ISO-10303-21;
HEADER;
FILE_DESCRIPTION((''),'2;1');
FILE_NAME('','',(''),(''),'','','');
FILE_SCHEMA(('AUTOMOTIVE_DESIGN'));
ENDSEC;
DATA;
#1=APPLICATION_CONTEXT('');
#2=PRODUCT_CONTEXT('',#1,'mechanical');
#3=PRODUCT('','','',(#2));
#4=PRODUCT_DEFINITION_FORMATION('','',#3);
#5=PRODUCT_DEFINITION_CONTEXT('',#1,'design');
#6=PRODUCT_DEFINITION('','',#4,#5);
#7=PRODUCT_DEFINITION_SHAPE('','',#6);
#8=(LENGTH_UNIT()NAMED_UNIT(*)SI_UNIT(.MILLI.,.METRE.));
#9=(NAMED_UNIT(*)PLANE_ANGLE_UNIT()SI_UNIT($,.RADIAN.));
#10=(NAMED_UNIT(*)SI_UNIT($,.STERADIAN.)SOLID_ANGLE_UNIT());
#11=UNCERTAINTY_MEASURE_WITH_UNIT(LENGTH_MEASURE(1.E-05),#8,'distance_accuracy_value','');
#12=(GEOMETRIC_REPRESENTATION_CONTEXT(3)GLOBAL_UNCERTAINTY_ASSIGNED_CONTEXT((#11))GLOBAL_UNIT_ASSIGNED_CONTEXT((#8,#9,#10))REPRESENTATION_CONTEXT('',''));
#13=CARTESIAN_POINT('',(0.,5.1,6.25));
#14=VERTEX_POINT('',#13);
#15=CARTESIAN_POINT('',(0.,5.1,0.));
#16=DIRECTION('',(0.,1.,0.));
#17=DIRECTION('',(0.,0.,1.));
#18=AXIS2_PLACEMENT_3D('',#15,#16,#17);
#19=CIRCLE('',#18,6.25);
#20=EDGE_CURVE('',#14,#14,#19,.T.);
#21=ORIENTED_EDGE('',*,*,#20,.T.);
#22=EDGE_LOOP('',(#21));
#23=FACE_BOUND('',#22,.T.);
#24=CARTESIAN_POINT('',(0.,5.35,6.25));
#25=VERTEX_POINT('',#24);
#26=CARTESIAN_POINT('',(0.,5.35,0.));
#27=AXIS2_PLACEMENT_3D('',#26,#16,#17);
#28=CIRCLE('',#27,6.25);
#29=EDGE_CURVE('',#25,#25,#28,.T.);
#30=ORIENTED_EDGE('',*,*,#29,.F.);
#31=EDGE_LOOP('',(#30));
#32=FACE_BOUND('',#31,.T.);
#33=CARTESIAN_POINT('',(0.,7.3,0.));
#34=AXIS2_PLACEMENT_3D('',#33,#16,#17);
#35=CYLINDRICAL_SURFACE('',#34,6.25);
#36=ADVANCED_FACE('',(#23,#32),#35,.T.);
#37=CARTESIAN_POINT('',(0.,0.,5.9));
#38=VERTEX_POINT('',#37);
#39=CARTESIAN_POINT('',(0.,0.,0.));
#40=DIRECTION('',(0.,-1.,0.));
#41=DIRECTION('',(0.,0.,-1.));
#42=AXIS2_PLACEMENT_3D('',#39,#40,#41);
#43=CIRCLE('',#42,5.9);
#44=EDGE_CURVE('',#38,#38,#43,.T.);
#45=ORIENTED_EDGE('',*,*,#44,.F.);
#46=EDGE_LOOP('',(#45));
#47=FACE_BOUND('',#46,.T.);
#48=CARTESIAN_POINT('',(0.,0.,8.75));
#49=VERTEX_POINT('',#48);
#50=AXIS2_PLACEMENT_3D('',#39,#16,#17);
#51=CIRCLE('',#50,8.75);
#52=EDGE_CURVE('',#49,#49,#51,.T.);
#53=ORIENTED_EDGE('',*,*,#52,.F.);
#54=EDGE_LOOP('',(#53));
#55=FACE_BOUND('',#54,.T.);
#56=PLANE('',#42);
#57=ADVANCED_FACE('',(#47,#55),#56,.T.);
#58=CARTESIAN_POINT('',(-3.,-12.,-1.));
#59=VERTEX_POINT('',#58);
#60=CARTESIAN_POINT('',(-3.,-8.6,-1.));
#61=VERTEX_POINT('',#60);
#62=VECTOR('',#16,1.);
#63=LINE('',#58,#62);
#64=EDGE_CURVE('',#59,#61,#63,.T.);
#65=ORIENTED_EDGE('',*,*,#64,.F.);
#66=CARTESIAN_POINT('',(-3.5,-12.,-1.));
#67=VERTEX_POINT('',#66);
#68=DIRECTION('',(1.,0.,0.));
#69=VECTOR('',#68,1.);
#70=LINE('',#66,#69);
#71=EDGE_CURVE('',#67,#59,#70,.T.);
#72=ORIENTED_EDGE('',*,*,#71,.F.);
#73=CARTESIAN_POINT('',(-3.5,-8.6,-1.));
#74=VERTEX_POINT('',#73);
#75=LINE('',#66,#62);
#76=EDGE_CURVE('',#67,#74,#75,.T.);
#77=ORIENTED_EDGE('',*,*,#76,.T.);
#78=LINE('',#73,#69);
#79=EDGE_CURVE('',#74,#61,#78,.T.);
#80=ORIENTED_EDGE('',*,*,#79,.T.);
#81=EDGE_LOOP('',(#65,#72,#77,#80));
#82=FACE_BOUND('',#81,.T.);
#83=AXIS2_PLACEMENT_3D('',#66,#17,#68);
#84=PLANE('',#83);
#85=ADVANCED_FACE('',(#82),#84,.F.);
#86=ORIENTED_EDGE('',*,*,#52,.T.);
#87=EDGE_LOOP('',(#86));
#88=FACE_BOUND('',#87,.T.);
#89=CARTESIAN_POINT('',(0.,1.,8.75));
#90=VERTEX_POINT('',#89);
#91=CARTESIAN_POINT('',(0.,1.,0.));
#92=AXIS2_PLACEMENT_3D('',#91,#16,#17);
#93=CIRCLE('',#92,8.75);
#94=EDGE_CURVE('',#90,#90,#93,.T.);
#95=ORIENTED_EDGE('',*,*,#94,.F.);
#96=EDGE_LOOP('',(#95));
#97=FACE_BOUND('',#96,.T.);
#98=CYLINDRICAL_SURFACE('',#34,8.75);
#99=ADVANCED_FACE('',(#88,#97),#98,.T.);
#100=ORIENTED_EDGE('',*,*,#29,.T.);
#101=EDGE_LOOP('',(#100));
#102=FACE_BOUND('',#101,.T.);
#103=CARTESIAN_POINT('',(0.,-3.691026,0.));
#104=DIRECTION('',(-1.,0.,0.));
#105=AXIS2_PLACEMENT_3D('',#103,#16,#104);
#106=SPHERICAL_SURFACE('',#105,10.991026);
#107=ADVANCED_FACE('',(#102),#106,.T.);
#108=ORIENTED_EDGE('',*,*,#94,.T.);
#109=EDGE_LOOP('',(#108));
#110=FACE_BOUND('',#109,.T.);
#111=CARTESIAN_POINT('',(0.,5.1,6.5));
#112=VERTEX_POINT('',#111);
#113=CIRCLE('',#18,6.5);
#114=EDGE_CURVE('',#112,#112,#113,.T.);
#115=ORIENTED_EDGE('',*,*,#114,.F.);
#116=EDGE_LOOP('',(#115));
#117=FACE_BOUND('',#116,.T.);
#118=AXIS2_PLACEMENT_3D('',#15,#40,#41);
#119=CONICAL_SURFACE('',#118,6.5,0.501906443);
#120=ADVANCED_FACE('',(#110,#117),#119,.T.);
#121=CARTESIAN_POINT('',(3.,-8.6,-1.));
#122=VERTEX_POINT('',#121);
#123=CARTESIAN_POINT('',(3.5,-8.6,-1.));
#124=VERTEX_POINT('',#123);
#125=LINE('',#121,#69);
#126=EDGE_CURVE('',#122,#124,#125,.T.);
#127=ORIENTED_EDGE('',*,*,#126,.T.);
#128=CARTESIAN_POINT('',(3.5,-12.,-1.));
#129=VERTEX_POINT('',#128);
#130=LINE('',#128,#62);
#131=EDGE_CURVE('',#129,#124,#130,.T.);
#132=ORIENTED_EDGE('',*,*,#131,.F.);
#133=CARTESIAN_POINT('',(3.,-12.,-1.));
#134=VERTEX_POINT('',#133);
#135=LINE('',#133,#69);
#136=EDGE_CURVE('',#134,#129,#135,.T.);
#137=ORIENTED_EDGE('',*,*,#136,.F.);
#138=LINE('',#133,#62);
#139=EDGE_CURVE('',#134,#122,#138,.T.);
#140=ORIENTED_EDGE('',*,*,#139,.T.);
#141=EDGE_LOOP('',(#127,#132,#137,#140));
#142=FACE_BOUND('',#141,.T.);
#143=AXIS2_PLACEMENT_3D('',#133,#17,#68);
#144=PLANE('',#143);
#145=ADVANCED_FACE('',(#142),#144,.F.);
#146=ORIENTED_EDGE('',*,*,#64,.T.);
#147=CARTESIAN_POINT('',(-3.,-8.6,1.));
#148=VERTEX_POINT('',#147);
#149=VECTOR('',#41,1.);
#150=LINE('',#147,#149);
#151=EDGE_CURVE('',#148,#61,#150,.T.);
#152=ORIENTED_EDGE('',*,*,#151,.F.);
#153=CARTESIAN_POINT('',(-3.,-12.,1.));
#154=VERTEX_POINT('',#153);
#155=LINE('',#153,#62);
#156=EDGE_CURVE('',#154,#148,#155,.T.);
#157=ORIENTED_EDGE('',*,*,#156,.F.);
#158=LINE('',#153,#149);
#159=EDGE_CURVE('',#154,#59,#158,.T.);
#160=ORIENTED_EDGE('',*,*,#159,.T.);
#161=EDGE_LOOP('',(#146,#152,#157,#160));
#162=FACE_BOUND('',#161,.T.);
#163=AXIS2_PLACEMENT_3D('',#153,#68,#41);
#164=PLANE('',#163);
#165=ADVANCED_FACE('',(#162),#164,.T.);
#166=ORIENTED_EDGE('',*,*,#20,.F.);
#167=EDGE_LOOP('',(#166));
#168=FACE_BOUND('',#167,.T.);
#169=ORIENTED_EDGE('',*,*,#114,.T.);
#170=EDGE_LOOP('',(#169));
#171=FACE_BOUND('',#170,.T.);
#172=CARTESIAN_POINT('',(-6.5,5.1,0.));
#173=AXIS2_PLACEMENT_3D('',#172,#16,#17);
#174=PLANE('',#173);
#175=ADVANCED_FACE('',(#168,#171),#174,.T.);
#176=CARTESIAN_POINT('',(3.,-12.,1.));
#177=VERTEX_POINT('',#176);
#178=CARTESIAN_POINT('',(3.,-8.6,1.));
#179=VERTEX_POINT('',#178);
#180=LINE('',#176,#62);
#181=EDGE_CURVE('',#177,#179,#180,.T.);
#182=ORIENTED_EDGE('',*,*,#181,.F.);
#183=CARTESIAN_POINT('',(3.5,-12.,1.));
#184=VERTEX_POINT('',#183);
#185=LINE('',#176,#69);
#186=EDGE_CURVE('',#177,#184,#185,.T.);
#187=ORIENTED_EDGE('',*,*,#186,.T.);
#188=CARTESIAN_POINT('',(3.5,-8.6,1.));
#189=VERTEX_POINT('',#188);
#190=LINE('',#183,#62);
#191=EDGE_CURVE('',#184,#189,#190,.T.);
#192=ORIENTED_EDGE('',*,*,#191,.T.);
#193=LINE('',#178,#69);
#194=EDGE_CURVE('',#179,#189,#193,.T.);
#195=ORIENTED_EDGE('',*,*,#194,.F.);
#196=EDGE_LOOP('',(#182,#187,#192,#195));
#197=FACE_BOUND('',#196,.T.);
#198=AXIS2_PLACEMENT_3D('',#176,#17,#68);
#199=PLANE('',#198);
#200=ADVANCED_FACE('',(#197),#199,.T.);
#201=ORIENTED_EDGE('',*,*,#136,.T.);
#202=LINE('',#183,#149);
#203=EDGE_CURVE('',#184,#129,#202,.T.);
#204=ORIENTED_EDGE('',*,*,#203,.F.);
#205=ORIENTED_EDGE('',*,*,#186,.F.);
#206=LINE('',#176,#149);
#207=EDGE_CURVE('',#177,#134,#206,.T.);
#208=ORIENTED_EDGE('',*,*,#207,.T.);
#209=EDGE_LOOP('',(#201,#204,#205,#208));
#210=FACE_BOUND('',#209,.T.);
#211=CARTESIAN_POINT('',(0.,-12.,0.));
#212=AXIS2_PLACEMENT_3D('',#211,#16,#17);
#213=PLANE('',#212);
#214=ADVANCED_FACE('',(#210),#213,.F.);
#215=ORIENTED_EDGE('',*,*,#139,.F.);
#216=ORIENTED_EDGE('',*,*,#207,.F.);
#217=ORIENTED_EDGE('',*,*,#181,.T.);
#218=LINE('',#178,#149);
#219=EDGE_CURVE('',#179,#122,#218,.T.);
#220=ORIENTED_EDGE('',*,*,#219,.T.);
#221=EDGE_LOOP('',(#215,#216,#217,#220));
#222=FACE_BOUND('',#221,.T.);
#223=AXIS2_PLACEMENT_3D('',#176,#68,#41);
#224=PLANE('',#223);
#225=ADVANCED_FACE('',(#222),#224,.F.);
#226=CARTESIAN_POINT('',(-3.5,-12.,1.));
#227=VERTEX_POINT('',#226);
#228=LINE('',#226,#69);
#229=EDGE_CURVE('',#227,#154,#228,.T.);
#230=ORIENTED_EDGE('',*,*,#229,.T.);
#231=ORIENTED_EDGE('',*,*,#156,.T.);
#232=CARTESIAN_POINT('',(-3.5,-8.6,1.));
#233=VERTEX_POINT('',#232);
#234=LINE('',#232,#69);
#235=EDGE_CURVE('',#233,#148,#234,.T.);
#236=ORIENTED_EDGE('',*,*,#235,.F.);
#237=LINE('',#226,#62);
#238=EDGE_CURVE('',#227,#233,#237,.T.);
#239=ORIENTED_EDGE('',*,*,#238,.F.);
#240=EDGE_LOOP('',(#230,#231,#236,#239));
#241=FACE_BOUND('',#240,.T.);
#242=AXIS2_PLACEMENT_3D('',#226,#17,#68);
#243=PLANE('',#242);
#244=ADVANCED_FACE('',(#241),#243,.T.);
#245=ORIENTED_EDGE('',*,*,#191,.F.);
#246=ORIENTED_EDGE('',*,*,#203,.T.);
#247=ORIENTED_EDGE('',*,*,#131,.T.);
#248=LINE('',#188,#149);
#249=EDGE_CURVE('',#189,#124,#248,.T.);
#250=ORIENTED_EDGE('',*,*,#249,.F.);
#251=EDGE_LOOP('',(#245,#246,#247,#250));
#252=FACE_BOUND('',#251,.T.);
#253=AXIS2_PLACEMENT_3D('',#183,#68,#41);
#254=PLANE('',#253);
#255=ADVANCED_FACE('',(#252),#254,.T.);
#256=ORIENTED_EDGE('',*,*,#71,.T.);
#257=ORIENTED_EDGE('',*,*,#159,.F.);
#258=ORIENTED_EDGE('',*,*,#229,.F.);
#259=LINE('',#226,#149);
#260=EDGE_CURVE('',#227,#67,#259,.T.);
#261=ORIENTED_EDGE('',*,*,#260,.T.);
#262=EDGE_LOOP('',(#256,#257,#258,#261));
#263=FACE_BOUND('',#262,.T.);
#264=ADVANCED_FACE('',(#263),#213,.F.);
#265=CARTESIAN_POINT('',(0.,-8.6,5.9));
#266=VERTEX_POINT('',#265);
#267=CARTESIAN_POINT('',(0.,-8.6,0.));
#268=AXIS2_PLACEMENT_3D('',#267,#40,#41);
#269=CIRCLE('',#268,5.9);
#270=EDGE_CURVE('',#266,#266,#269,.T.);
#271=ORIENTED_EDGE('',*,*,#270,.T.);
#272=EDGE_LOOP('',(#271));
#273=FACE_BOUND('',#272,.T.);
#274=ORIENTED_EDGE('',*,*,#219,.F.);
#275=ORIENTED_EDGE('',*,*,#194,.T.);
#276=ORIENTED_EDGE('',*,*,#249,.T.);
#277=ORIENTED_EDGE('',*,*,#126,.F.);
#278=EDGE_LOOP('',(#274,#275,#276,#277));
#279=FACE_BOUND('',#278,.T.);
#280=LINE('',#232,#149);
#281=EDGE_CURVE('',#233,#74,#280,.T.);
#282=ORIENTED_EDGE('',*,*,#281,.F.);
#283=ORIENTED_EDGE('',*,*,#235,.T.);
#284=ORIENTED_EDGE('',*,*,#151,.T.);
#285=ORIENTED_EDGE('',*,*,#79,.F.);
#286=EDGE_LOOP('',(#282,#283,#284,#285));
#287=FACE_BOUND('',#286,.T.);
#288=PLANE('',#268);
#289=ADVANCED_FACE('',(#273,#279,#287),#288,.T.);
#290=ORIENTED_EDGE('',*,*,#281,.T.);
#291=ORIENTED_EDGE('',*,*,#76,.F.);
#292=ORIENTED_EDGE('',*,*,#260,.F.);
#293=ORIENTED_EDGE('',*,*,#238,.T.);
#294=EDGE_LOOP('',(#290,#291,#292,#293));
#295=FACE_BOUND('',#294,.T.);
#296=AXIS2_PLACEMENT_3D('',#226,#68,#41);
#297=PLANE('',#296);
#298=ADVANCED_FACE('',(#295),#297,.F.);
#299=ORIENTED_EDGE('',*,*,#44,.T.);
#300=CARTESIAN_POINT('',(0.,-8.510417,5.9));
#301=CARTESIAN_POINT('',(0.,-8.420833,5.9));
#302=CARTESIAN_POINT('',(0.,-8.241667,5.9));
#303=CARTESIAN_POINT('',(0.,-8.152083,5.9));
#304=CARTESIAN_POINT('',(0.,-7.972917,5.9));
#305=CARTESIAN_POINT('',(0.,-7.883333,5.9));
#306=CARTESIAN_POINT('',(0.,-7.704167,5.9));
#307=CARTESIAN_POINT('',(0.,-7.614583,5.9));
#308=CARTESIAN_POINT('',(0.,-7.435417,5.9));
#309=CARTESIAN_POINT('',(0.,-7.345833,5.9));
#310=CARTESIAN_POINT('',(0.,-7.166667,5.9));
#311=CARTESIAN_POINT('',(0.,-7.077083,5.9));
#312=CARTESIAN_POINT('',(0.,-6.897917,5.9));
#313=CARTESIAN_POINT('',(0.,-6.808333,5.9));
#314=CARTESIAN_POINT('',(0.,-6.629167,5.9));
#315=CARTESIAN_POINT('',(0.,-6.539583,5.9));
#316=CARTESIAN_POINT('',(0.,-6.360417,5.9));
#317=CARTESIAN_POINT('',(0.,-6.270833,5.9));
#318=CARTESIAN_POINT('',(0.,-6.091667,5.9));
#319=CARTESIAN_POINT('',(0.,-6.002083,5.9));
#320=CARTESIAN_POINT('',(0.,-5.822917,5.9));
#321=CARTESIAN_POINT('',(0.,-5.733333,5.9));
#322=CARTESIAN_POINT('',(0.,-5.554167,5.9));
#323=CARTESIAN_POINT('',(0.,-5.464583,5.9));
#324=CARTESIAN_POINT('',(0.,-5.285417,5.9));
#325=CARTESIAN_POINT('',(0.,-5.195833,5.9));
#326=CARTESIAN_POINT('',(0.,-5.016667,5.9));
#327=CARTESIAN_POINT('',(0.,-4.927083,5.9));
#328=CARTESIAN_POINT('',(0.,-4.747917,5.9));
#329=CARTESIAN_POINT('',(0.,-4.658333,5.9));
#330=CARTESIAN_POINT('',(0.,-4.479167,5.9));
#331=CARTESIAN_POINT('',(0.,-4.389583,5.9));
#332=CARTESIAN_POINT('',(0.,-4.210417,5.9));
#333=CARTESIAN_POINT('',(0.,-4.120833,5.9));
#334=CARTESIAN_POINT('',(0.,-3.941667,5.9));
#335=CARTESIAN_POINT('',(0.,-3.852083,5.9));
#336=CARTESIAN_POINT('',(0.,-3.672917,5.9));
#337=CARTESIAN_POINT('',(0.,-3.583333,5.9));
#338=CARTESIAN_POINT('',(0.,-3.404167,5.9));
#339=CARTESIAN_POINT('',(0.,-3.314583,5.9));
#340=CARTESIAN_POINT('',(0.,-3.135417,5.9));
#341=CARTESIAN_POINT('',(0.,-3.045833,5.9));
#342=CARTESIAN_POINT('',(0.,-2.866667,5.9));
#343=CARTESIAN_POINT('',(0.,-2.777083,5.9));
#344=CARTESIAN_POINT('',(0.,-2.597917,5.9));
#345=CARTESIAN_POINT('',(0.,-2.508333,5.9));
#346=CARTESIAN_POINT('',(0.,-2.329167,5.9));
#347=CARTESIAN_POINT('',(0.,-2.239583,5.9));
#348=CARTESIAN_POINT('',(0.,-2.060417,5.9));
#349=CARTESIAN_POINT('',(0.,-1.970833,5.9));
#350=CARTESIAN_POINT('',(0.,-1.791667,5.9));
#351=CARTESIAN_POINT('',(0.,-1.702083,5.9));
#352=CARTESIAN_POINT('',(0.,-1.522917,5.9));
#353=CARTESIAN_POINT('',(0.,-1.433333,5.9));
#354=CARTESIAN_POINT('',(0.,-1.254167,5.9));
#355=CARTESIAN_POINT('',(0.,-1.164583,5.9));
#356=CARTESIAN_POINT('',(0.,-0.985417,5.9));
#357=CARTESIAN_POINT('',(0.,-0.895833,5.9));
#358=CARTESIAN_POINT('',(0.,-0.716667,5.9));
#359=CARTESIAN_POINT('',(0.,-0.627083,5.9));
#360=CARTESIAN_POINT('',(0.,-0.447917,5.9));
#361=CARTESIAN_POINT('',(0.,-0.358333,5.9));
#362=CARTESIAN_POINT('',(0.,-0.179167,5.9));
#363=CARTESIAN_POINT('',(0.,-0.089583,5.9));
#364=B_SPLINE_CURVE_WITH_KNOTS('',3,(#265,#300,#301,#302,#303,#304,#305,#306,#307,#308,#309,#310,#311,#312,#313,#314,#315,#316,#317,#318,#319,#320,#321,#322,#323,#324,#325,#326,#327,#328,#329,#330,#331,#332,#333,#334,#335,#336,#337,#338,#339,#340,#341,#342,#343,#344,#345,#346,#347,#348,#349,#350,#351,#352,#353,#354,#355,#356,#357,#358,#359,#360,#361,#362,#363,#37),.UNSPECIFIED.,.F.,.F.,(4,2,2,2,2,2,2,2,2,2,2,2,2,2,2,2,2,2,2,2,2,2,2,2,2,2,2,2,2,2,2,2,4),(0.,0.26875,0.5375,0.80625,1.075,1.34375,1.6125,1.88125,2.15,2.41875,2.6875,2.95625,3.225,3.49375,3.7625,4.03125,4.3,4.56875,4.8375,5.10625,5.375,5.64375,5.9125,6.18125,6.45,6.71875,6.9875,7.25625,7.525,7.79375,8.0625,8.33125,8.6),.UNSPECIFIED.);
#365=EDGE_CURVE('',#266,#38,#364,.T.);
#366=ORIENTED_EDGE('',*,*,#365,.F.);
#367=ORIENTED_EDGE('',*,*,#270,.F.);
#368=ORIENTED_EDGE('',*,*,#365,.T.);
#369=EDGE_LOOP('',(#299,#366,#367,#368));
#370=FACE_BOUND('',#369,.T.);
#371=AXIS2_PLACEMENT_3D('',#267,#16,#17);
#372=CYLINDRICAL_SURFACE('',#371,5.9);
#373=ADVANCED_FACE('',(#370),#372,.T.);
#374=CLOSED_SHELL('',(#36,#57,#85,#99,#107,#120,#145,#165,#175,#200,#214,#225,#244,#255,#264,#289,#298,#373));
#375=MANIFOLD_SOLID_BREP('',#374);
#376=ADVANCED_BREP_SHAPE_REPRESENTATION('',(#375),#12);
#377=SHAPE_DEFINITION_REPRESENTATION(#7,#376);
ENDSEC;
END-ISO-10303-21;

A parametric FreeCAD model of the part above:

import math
import FreeCAD as App
import Part
import Sketcher

V = App.Vector


def add_polygon(sketch, points):
    """Adds a closed chain of lines whose ends are joined by coincident constraints."""
    first, n = sketch.GeometryCount, len(points)
    for a, b in zip(points, points[1:] + points[:1]):
        sketch.addGeometry(Part.LineSegment(App.Vector(*a, 0), App.Vector(*b, 0)), False)
    for i in range(n):
        sketch.addConstraint(Sketcher.Constraint("Coincident", first + i, 2, first + (i + 1) % n, 1))

doc = App.newDocument("Part")
body = doc.addObject("PartDesign::Body", "Body")

# Sketch on XY plane
sketch1 = doc.addObject("Sketcher::SketchObject", "Sketch")
body.addObject(sketch1)
sketch1.AttachmentSupport = (doc.XY_Plane, [""])
sketch1.MapMode = "FlatFace"
sketch1.addGeometry([
    Part.LineSegment(V(-8.75, 0, 0), V(0, 0, 0)),  # 0
    Part.LineSegment(V(0, 0, 0), V(0, 7.3, 0)),  # 1
    Part.ArcOfCircle(Part.Circle(V(0, -3.69, 0), V(0, 0, 1), 10.99), math.radians(90), math.radians(125)),  # 2
    Part.LineSegment(V(-6.25, 5.35, 0), V(-6.25, 5.1, 0)),  # 3
    Part.LineSegment(V(-6.25, 5.1, 0), V(-6.5, 5.1, 0)),  # 4
    Part.LineSegment(V(-6.5, 5.1, 0), V(-8.75, 1, 0)),  # 5
    Part.LineSegment(V(-8.75, 1, 0), V(-8.75, 0, 0)),  # 6
], False)
sketch1.addConstraint([
    Sketcher.Constraint("Coincident", 0, 2, 1, 1),
    Sketcher.Constraint("Coincident", 1, 2, 2, 1),
    Sketcher.Constraint("Coincident", 2, 2, 3, 1),
    Sketcher.Constraint("Coincident", 3, 2, 4, 1),
    Sketcher.Constraint("Coincident", 4, 2, 5, 1),
    Sketcher.Constraint("Coincident", 5, 2, 6, 1),
    Sketcher.Constraint("Coincident", 6, 2, 0, 1),
    Sketcher.Constraint("Horizontal", 0),
    Sketcher.Constraint("Vertical", 1),
    Sketcher.Constraint("Vertical", 3),
    Sketcher.Constraint("Horizontal", 4),
    Sketcher.Constraint("Vertical", 6),
    Sketcher.Constraint("Coincident", 0, 2, -1, 1),
    Sketcher.Constraint("PointOnObject", 2, 3, -2),
    Sketcher.Constraint("Equal", 4, 3),
    Sketcher.Constraint("DistanceY", 6, 2, 6, 1, 1.0),
    Sketcher.Constraint("DistanceY", 1, 1, 1, 2, 7.3),
    Sketcher.Constraint("DistanceX", 0, 1, 0, 2, 8.75),
    Sketcher.Constraint("DistanceX", 4, 2, 4, 1, 0.25),
    Sketcher.Constraint("DistanceY", -1, 1, 3, 2, 5.1),
    Sketcher.Constraint("DistanceX", 4, 2, -1, 1, 6.5),
])
revolution = doc.addObject("PartDesign::Revolution", "Revolution")
body.addObject(revolution)
revolution.Profile = sketch1
revolution.ReferenceAxis = (sketch1, ["V_Axis"])
revolution.Angle = 360

# Sketch on XZ plane
sketch2 = doc.addObject("Sketcher::SketchObject", "Sketch001")
body.addObject(sketch2)
sketch2.AttachmentSupport = (doc.XZ_Plane, [""])
sketch2.MapMode = "FlatFace"
sketch2.addGeometry(Part.Circle(V(0, 0, 0), V(0, 0, 1), 6), False)
sketch2.addConstraint([
    Sketcher.Constraint("Coincident", 0, 3, -1, 1),
    Sketcher.Constraint("Diameter", 0, 11.8),
])
pad1 = doc.addObject("PartDesign::Pad", "Pad")
body.addObject(pad1)
pad1.Profile = sketch2
pad1.Length = 8.6

# Sketch on XZ plane
sketch3 = doc.addObject("Sketcher::SketchObject", "Sketch002")
body.addObject(sketch3)
sketch3.AttachmentSupport = (doc.XZ_Plane, [""])
sketch3.MapMode = "FlatFace"
sketch3.AttachmentOffset = App.Placement(V(0, 0, 8.6), App.Rotation())
add_polygon(sketch3, [(-3.5, 1), (-3.5, -1), (-3, -1), (-3, 1)])  # lines 0-3
add_polygon(sketch3, [(3, 1), (3, -1), (3.5, -1), (3.5, 1)])  # lines 4-7
sketch3.addConstraint([
    Sketcher.Constraint("Vertical", 0),
    Sketcher.Constraint("Horizontal", 1),
    Sketcher.Constraint("Vertical", 2),
    Sketcher.Constraint("Horizontal", 3),
    Sketcher.Constraint("Vertical", 4),
    Sketcher.Constraint("Horizontal", 5),
    Sketcher.Constraint("Vertical", 6),
    Sketcher.Constraint("Horizontal", 7),
    Sketcher.Constraint("Symmetric", 2, 2, 4, 2, -1, 1),
    Sketcher.Constraint("Symmetric", 0, 2, 6, 2, -1, 1),
    Sketcher.Constraint("Horizontal", 1, 2, 4, 2),
    Sketcher.Constraint("DistanceY", 0, 2, 0, 1, 2.0),
    Sketcher.Constraint("DistanceX", 1, 1, 1, 2, 0.5),
    Sketcher.Constraint("DistanceX", 1, 2, -1, 1, 3.0),
])
pad2 = doc.addObject("PartDesign::Pad", "Pad001")
body.addObject(pad2)
pad2.Profile = sketch3
pad2.Length = 3.4

doc.recompute()
